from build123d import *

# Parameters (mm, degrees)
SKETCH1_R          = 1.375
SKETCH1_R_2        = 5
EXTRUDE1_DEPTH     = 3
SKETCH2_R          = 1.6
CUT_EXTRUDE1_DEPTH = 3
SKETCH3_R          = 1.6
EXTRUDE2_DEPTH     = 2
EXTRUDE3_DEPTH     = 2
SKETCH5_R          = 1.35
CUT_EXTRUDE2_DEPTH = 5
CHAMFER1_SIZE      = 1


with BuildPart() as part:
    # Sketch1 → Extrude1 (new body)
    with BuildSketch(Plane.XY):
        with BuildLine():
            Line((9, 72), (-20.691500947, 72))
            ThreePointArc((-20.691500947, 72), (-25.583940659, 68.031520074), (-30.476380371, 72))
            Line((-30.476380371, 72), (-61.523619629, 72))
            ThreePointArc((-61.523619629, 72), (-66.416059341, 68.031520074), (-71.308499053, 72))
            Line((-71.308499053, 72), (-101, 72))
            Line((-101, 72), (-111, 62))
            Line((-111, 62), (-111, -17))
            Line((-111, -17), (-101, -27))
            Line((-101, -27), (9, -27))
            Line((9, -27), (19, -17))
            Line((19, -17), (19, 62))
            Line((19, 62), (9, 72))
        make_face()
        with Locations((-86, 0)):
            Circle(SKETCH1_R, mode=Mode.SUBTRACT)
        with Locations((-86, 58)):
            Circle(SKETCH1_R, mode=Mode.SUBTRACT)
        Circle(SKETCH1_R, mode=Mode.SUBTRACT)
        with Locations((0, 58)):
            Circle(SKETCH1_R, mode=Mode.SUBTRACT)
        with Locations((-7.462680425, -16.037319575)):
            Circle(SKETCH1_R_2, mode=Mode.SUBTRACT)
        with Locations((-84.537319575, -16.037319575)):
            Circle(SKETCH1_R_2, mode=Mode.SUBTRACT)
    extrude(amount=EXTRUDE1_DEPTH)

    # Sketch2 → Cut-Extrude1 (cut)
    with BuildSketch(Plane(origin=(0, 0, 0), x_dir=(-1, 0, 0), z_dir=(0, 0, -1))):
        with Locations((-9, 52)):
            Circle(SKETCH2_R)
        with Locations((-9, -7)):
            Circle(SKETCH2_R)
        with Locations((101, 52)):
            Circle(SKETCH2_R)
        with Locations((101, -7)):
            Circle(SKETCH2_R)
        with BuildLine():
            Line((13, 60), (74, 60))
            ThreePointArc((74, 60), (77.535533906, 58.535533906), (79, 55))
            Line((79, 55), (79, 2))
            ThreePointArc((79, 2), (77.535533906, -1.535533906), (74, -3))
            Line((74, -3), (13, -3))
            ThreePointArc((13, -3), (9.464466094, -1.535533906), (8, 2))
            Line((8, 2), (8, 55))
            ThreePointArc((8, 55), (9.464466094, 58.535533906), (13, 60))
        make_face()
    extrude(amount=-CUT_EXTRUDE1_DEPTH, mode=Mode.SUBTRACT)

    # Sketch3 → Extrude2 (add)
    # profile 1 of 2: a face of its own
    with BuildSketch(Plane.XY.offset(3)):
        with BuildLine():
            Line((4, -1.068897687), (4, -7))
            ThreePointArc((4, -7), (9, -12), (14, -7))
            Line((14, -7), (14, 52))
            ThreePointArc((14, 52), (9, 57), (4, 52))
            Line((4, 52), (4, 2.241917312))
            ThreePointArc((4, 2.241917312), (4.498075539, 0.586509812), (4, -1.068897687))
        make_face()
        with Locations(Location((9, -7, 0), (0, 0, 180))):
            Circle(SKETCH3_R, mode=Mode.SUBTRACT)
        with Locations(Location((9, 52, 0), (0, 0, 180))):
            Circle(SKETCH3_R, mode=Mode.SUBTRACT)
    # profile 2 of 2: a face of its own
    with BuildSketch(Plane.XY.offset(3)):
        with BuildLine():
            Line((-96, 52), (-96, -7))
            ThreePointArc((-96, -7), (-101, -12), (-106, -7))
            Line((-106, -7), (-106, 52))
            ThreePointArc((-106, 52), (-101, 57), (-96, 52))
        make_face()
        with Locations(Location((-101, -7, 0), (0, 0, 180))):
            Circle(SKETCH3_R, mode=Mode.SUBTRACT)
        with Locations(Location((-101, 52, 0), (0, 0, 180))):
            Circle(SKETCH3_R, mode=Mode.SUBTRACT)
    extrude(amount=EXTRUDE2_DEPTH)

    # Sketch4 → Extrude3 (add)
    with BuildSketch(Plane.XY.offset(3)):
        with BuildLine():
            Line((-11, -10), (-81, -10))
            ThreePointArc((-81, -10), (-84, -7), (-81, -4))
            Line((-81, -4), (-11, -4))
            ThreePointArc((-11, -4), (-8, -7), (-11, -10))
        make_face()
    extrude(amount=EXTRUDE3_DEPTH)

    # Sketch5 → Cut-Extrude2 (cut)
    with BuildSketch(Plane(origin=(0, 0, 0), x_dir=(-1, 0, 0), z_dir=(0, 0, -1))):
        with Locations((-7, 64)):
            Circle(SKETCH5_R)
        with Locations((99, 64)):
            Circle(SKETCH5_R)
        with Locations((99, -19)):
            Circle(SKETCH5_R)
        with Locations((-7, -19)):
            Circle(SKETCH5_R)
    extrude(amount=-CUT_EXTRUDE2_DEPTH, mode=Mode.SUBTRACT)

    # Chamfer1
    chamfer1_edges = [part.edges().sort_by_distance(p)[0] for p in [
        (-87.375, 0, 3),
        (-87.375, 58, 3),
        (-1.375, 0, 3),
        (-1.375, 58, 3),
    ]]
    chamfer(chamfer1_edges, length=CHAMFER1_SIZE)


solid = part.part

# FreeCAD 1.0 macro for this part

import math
import FreeCAD as App
import Part
import Sketcher
from FreeCAD import Vector
Q = App.Units.Quantity


def edges_at(feature, points):
    """Names of the edges that pass closest to the given points."""
    edges = feature.Shape.Edges
    near = lambda p: min(range(len(edges)), key=lambda i: edges[i].distToShape(Part.Vertex(*p))[0])
    return sorted({f"Edge{near(p) + 1}" for p in points})

doc = App.newDocument("Part")
body = doc.addObject("PartDesign::Body", "Body")

sketch1 = body.newObject("Sketcher::SketchObject", "Sketch")
sketch1.AttachmentSupport = (doc.getObject("XY_Plane"), [""])
sketch1.MapMode = "FlatFace"
sketch1.addGeometry(Part.LineSegment(Vector(9, 72, 0), Vector(-20.7, 72, 0)), False)
sketch1.addGeometry(Part.ArcOfCircle(Part.Circle(Vector(-25.6, 73, 0), Vector(0, 0, 1), 5), math.radians(-168), math.radians(-12)), False)
sketch1.addGeometry(Part.LineSegment(Vector(-30.5, 72, 0), Vector(-61.5, 72, 0)), False)
sketch1.addGeometry(Part.ArcOfCircle(Part.Circle(Vector(-66.4, 73, 0), Vector(0, 0, 1), 5), math.radians(-168), math.radians(-12)), False)
sketch1.addGeometry(Part.LineSegment(Vector(-71.3, 72, 0), Vector(-101, 72, 0)), False)
sketch1.addGeometry(Part.LineSegment(Vector(-101, 72, 0), Vector(-111, 62, 0)), False)
sketch1.addGeometry(Part.LineSegment(Vector(-111, 62, 0), Vector(-111, -17, 0)), False)
sketch1.addGeometry(Part.LineSegment(Vector(-111, -17, 0), Vector(-101, -27, 0)), False)
sketch1.addGeometry(Part.LineSegment(Vector(-101, -27, 0), Vector(9, -27, 0)), False)
sketch1.addGeometry(Part.LineSegment(Vector(9, -27, 0), Vector(19, -17, 0)), False)
sketch1.addGeometry(Part.LineSegment(Vector(19, -17, 0), Vector(19, 62, 0)), False)
sketch1.addGeometry(Part.LineSegment(Vector(19, 62, 0), Vector(9, 72, 0)), False)
sketch1.addGeometry(Part.Circle(Vector(-84.5, -16, 0), Vector(0, 0, 1), 5), False)
sketch1.addGeometry(Part.Circle(Vector(-86, 0, 0), Vector(0, 0, 1), 1.4), False)
sketch1.addGeometry(Part.Circle(Vector(-7.5, -16, 0), Vector(0, 0, 1), 5), False)
sketch1.addGeometry(Part.Circle(Vector(0, 0, 0), Vector(0, 0, 1), 1.4), False)
sketch1.addGeometry(Part.Circle(Vector(-86, 58, 0), Vector(0, 0, 1), 1.4), False)
sketch1.addGeometry(Part.Circle(Vector(0, 58, 0), Vector(0, 0, 1), 1.4), False)
sketch1.addConstraint(Sketcher.Constraint("Coincident", 0, 2, 1, 2))
sketch1.addConstraint(Sketcher.Constraint("Coincident", 1, 1, 2, 1))
sketch1.addConstraint(Sketcher.Constraint("Coincident", 2, 2, 3, 2))
sketch1.addConstraint(Sketcher.Constraint("Coincident", 3, 1, 4, 1))
sketch1.addConstraint(Sketcher.Constraint("Coincident", 4, 2, 5, 1))
sketch1.addConstraint(Sketcher.Constraint("Coincident", 5, 2, 6, 1))
sketch1.addConstraint(Sketcher.Constraint("Coincident", 6, 2, 7, 1))
sketch1.addConstraint(Sketcher.Constraint("Coincident", 7, 2, 8, 1))
sketch1.addConstraint(Sketcher.Constraint("Coincident", 8, 2, 9, 1))
sketch1.addConstraint(Sketcher.Constraint("Coincident", 9, 2, 10, 1))
sketch1.addConstraint(Sketcher.Constraint("Coincident", 10, 2, 11, 1))
sketch1.addConstraint(Sketcher.Constraint("Coincident", 11, 2, 0, 1))
sketch1.addConstraint(Sketcher.Constraint("Horizontal", 0))
sketch1.addConstraint(Sketcher.Constraint("Horizontal", 2))
sketch1.addConstraint(Sketcher.Constraint("Horizontal", 4))
sketch1.addConstraint(Sketcher.Constraint("Vertical", 6))
sketch1.addConstraint(Sketcher.Constraint("Horizontal", 8))
sketch1.addConstraint(Sketcher.Constraint("Vertical", 10))
sketch1.addConstraint(Sketcher.Constraint("Coincident", 15, 3, -1, 1))
sketch1.addConstraint(Sketcher.Constraint("Equal", 1, 3))
sketch1.addConstraint(Sketcher.Constraint("Equal", 3, 12))
sketch1.addConstraint(Sketcher.Constraint("Equal", 12, 14))
sketch1.addConstraint(Sketcher.Constraint("Equal", 13, 15))
sketch1.addConstraint(Sketcher.Constraint("Equal", 15, 16))
sketch1.addConstraint(Sketcher.Constraint("Equal", 16, 17))
sketch1.addConstraint(Sketcher.Constraint("PointOnObject", 13, 3, -1))
sketch1.addConstraint(Sketcher.Constraint("PointOnObject", 17, 3, -2))
sketch1.addConstraint(Sketcher.Constraint("Perpendicular", 5, 7))
sketch1.addConstraint(Sketcher.Constraint("Perpendicular", 7, 9))
sketch1.addConstraint(Sketcher.Constraint("Perpendicular", 9, 11))
sketch1.addConstraint(Sketcher.Constraint("Horizontal", 1, 3, 3, 3))
sketch1.addConstraint(Sketcher.Constraint("Horizontal", 12, 3, 14, 3))
sketch1.addConstraint(Sketcher.Constraint("Horizontal", 16, 3, 17, 3))
sketch1.addConstraint(Sketcher.Constraint("Horizontal", 0, 2, 1, 1))
sketch1.addConstraint(Sketcher.Constraint("Horizontal", 2, 2, 3, 1))
sketch1.addConstraint(Sketcher.Constraint("Horizontal", 6, 2, 9, 2))
sketch1.addConstraint(Sketcher.Constraint("Horizontal", 5, 2, 10, 2))
sketch1.addConstraint(Sketcher.Constraint("Vertical", 13, 3, 16, 3))
sketch1.addConstraint(Sketcher.Constraint("Vertical", 4, 2, 7, 2))
sketch1.addConstraint(Sketcher.Constraint("Vertical", 8, 2, 11, 2))
sketch1.addConstraint(Sketcher.Constraint("Equal", 0, 4))
sketch1.addConstraint(Sketcher.Constraint("Diameter", 12, Q("10 mm")))
sketch1.addConstraint(Sketcher.Constraint("Diameter", 13, Q("2.75 mm")))
sketch1.addConstraint(Sketcher.Constraint("DistanceX", 8, 1, 8, 2, Q("110 mm")))
sketch1.addConstraint(Sketcher.Constraint("DistanceY", 6, 2, 6, 1, Q("79 mm")))
sketch1.addConstraint(Sketcher.Constraint("DistanceX", 13, 3, -1, 1, Q("86 mm")))
sketch1.addConstraint(Sketcher.Constraint("DistanceY", -1, 1, 16, 3, Q("58 mm")))
sketch1.addConstraint(Sketcher.Constraint("DistanceY", -1, 1, 0, 2, Q("72 mm")))
sketch1.addConstraint(Sketcher.Constraint("DistanceX", 4, 2, -1, 1, Q("101 mm")))
sketch1.addConstraint(Sketcher.Constraint("DistanceX", 5, 2, -1, 1, Q("111 mm")))
sketch1.addConstraint(Sketcher.Constraint("DistanceX", 0, 2, 0, 1, Q("29.691501 mm")))
sketch1.addConstraint(Sketcher.Constraint("DistanceX", 2, 2, 2, 1, Q("31.047239 mm")))
sketch1.addConstraint(Sketcher.Constraint("DistanceX", 12, 3, -1, 1, Q("84.53732 mm")))
sketch1.addConstraint(Sketcher.Constraint("DistanceY", 12, 3, -1, 1, Q("16.03732 mm")))
sketch1.addConstraint(Sketcher.Constraint("DistanceX", 14, 3, -1, 1, Q("7.46268 mm")))
pad1 = body.newObject("PartDesign::Pad", "Pad")
pad1.Profile = sketch1
pad1.Length = 3

sketch2 = body.newObject("Sketcher::SketchObject", "Sketch001")
sketch2.AttachmentSupport = (doc.getObject("XY_Plane"), [""])
sketch2.MapMode = "FlatFace"
sketch2.addGeometry(Part.Circle(Vector(9, 52, 0), Vector(0, 0, 1), 1.6), False)
sketch2.addGeometry(Part.Circle(Vector(9, -7, 0), Vector(0, 0, 1), 1.6), False)
sketch2.addGeometry(Part.Circle(Vector(-101, 52, 0), Vector(0, 0, 1), 1.6), False)
sketch2.addGeometry(Part.Circle(Vector(-101, -7, 0), Vector(0, 0, 1), 1.6), False)
sketch2.addGeometry(Part.LineSegment(Vector(-74, 60, 0), Vector(-13, 60, 0)), False)
sketch2.addGeometry(Part.ArcOfCircle(Part.Circle(Vector(-13, 55, 0), Vector(0, 0, 1), 5), math.radians(0), math.radians(90)), False)
sketch2.addGeometry(Part.LineSegment(Vector(-8, 55, 0), Vector(-8, 2, 0)), False)
sketch2.addGeometry(Part.ArcOfCircle(Part.Circle(Vector(-13, 2, 0), Vector(0, 0, 1), 5), math.radians(-90), math.radians(0)), False)
sketch2.addGeometry(Part.LineSegment(Vector(-13, -3, 0), Vector(-74, -3, 0)), False)
sketch2.addGeometry(Part.ArcOfCircle(Part.Circle(Vector(-74, 2, 0), Vector(0, 0, 1), 5), math.radians(180), math.radians(270)), False)
sketch2.addGeometry(Part.LineSegment(Vector(-79, 2, 0), Vector(-79, 55, 0)), False)
sketch2.addGeometry(Part.ArcOfCircle(Part.Circle(Vector(-74, 55, 0), Vector(0, 0, 1), 5), math.radians(90), math.radians(180)), False)
sketch2.addConstraint(Sketcher.Constraint("Tangent", 4, 2, 5, 2))
sketch2.addConstraint(Sketcher.Constraint("Tangent", 5, 1, 6, 1))
sketch2.addConstraint(Sketcher.Constraint("Tangent", 6, 2, 7, 2))
sketch2.addConstraint(Sketcher.Constraint("Tangent", 7, 1, 8, 1))
sketch2.addConstraint(Sketcher.Constraint("Tangent", 8, 2, 9, 2))
sketch2.addConstraint(Sketcher.Constraint("Tangent", 9, 1, 10, 1))
sketch2.addConstraint(Sketcher.Constraint("Tangent", 10, 2, 11, 2))
sketch2.addConstraint(Sketcher.Constraint("Tangent", 11, 1, 4, 1))
sketch2.addConstraint(Sketcher.Constraint("Horizontal", 4))
sketch2.addConstraint(Sketcher.Constraint("Vertical", 6))
sketch2.addConstraint(Sketcher.Constraint("Horizontal", 8))
sketch2.addConstraint(Sketcher.Constraint("Vertical", 10))
sketch2.addConstraint(Sketcher.Constraint("Equal", 0, 1))
sketch2.addConstraint(Sketcher.Constraint("Equal", 1, 2))
sketch2.addConstraint(Sketcher.Constraint("Equal", 2, 3))
sketch2.addConstraint(Sketcher.Constraint("Equal", 5, 7))
sketch2.addConstraint(Sketcher.Constraint("Equal", 7, 9))
sketch2.addConstraint(Sketcher.Constraint("Equal", 9, 11))
sketch2.addConstraint(Sketcher.Constraint("Horizontal", 0, 3, 2, 3))
sketch2.addConstraint(Sketcher.Constraint("Horizontal", 1, 3, 3, 3))
sketch2.addConstraint(Sketcher.Constraint("Vertical", 0, 3, 1, 3))
sketch2.addConstraint(Sketcher.Constraint("Vertical", 2, 3, 3, 3))
sketch2.addConstraint(Sketcher.Constraint("Radius", 5, Q("5 mm")))
sketch2.addConstraint(Sketcher.Constraint("Diameter", 0, Q("3.2 mm")))
sketch2.addConstraint(Sketcher.Constraint("DistanceX", 4, 1, 4, 2, Q("61 mm")))
sketch2.addConstraint(Sketcher.Constraint("DistanceY", 6, 2, 6, 1, Q("53 mm")))
sketch2.addConstraint(Sketcher.Constraint("DistanceX", -1, 1, 0, 3, Q("9 mm")))
sketch2.addConstraint(Sketcher.Constraint("DistanceY", -1, 1, 0, 3, Q("52 mm")))
sketch2.addConstraint(Sketcher.Constraint("DistanceY", 1, 3, -1, 1, Q("7 mm")))
sketch2.addConstraint(Sketcher.Constraint("DistanceX", 2, 3, -1, 1, Q("101 mm")))
sketch2.addConstraint(Sketcher.Constraint("DistanceX", 5, 3, -1, 1, Q("13 mm")))
sketch2.addConstraint(Sketcher.Constraint("DistanceY", -1, 1, 5, 3, Q("55 mm")))
pocket1 = body.newObject("PartDesign::Pocket", "Pocket")
pocket1.Profile = sketch2
pocket1.Length = 3
pocket1.Reversed = True

sketch3 = body.newObject("Sketcher::SketchObject", "Sketch002")
sketch3.AttachmentSupport = (doc.getObject("XY_Plane"), [""])
sketch3.MapMode = "FlatFace"
sketch3.AttachmentOffset = App.Placement(Vector(0, 0, 3), App.Rotation())
sketch3.addGeometry(Part.LineSegment(Vector(4, -1.1, 0), Vector(4, -7, 0)), False)
sketch3.addGeometry(Part.ArcOfCircle(Part.Circle(Vector(9, -7, 0), Vector(0, 0, 1), 5), math.radians(180), math.radians(360)), False)
sketch3.addGeometry(Part.LineSegment(Vector(14, -7, 0), Vector(14, 52, 0)), False)
sketch3.addGeometry(Part.ArcOfCircle(Part.Circle(Vector(9, 52, 0), Vector(0, 0, 1), 5), math.radians(0), math.radians(180)), False)
sketch3.addGeometry(Part.LineSegment(Vector(4, 52, 0), Vector(4, 2.2, 0)), False)
sketch3.addGeometry(Part.ArcOfCircle(Part.Circle(Vector(1.5, 0.6, 0), Vector(0, 0, 1), 3), math.radians(-33), math.radians(33)), False)
sketch3.addGeometry(Part.Circle(Vector(9, -7, 0), Vector(0, 0, 1), 1.6), False)
sketch3.addGeometry(Part.Circle(Vector(9, 52, 0), Vector(0, 0, 1), 1.6), False)
sketch3.addGeometry(Part.LineSegment(Vector(-96, -7, 0), Vector(-96, 52, 0)), False)
sketch3.addGeometry(Part.ArcOfCircle(Part.Circle(Vector(-101, 52, 0), Vector(0, 0, 1), 5), math.radians(0), math.radians(180)), False)
sketch3.addGeometry(Part.LineSegment(Vector(-106, 52, 0), Vector(-106, -7, 0)), False)
sketch3.addGeometry(Part.ArcOfCircle(Part.Circle(Vector(-101, -7, 0), Vector(0, 0, 1), 5), math.radians(180), math.radians(360)), False)
sketch3.addGeometry(Part.Circle(Vector(-101, -7, 0), Vector(0, 0, 1), 1.6), False)
sketch3.addGeometry(Part.Circle(Vector(-101, 52, 0), Vector(0, 0, 1), 1.6), False)
sketch3.addConstraint(Sketcher.Constraint("Tangent", 0, 2, 1, 1))
sketch3.addConstraint(Sketcher.Constraint("Tangent", 1, 2, 2, 1))
sketch3.addConstraint(Sketcher.Constraint("Tangent", 2, 2, 3, 1))
sketch3.addConstraint(Sketcher.Constraint("Tangent", 3, 2, 4, 1))
sketch3.addConstraint(Sketcher.Constraint("Coincident", 4, 2, 5, 2))
sketch3.addConstraint(Sketcher.Constraint("Coincident", 5, 1, 0, 1))
sketch3.addConstraint(Sketcher.Constraint("Tangent", 8, 2, 9, 1))
sketch3.addConstraint(Sketcher.Constraint("Tangent", 9, 2, 10, 1))
sketch3.addConstraint(Sketcher.Constraint("Tangent", 10, 2, 11, 1))
sketch3.addConstraint(Sketcher.Constraint("Tangent", 11, 2, 8, 1))
sketch3.addConstraint(Sketcher.Constraint("Vertical", 0))
sketch3.addConstraint(Sketcher.Constraint("Vertical", 2))
sketch3.addConstraint(Sketcher.Constraint("Vertical", 4))
sketch3.addConstraint(Sketcher.Constraint("Vertical", 8))
sketch3.addConstraint(Sketcher.Constraint("Vertical", 10))
sketch3.addConstraint(Sketcher.Constraint("Coincident", 6, 3, 1, 3))
sketch3.addConstraint(Sketcher.Constraint("Coincident", 7, 3, 3, 3))
sketch3.addConstraint(Sketcher.Constraint("Coincident", 12, 3, 11, 3))
sketch3.addConstraint(Sketcher.Constraint("Coincident", 13, 3, 9, 3))
sketch3.addConstraint(Sketcher.Constraint("Equal", 1, 3))
sketch3.addConstraint(Sketcher.Constraint("Equal", 6, 7))
sketch3.addConstraint(Sketcher.Constraint("Equal", 3, 9))
sketch3.addConstraint(Sketcher.Constraint("Equal", 7, 12))
sketch3.addConstraint(Sketcher.Constraint("Equal", 12, 13))
sketch3.addConstraint(Sketcher.Constraint("Horizontal", 7, 3, 9, 3))
sketch3.addConstraint(Sketcher.Constraint("Horizontal", 6, 3, 11, 3))
sketch3.addConstraint(Sketcher.Constraint("Radius", 1, Q("5 mm")))
sketch3.addConstraint(Sketcher.Constraint("Radius", 5, Q("3 mm")))
sketch3.addConstraint(Sketcher.Constraint("Diameter", 6, Q("3.2 mm")))
sketch3.addConstraint(Sketcher.Constraint("DistanceY", 2, 1, 2, 2, Q("59 mm")))
sketch3.addConstraint(Sketcher.Constraint("DistanceX", -1, 1, 1, 3, Q("9 mm")))
sketch3.addConstraint(Sketcher.Constraint("DistanceY", 1, 3, -1, 1, Q("7 mm")))
sketch3.addConstraint(Sketcher.Constraint("DistanceX", 9, 3, -1, 1, Q("101 mm")))
sketch3.addConstraint(Sketcher.Constraint("DistanceY", 0, 2, 0, 1, Q("5.931102 mm")))
sketch3.addConstraint(Sketcher.Constraint("DistanceY", 4, 2, 4, 1, Q("49.758083 mm")))
pad2 = body.newObject("PartDesign::Pad", "Pad001")
pad2.Profile = sketch3
pad2.Length = 2

sketch4 = body.newObject("Sketcher::SketchObject", "Sketch003")
sketch4.AttachmentSupport = (doc.getObject("XY_Plane"), [""])
sketch4.MapMode = "FlatFace"
sketch4.AttachmentOffset = App.Placement(Vector(0, 0, 3), App.Rotation())
sketch4.addGeometry(Part.LineSegment(Vector(-81, -10, 0), Vector(-11, -10, 0)), False)
sketch4.addGeometry(Part.ArcOfCircle(Part.Circle(Vector(-11, -7, 0), Vector(0, 0, 1), 3), math.radians(-90), math.radians(90)), False)
sketch4.addGeometry(Part.LineSegment(Vector(-11, -4, 0), Vector(-81, -4, 0)), False)
sketch4.addGeometry(Part.ArcOfCircle(Part.Circle(Vector(-81, -7, 0), Vector(0, 0, 1), 3), math.radians(90), math.radians(270)), False)
sketch4.addConstraint(Sketcher.Constraint("Tangent", 0, 2, 1, 1))
sketch4.addConstraint(Sketcher.Constraint("Tangent", 1, 2, 2, 1))
sketch4.addConstraint(Sketcher.Constraint("Tangent", 2, 2, 3, 1))
sketch4.addConstraint(Sketcher.Constraint("Tangent", 3, 2, 0, 1))
sketch4.addConstraint(Sketcher.Constraint("Horizontal", 0))
sketch4.addConstraint(Sketcher.Constraint("Horizontal", 2))
sketch4.addConstraint(Sketcher.Constraint("Radius", 1, Q("3 mm")))
sketch4.addConstraint(Sketcher.Constraint("DistanceX", 0, 1, 0, 2, Q("70 mm")))
sketch4.addConstraint(Sketcher.Constraint("DistanceX", 1, 3, -1, 1, Q("11 mm")))
sketch4.addConstraint(Sketcher.Constraint("DistanceY", 1, 3, -1, 1, Q("7 mm")))
pad3 = body.newObject("PartDesign::Pad", "Pad002")
pad3.Profile = sketch4
pad3.Length = 2

sketch5 = body.newObject("Sketcher::SketchObject", "Sketch004")
sketch5.AttachmentSupport = (doc.getObject("XY_Plane"), [""])
sketch5.MapMode = "FlatFace"
sketch5.addGeometry(Part.Circle(Vector(7, 64, 0), Vector(0, 0, 1), 1.4), False)
sketch5.addGeometry(Part.Circle(Vector(-99, 64, 0), Vector(0, 0, 1), 1.4), False)
sketch5.addGeometry(Part.Circle(Vector(-99, -19, 0), Vector(0, 0, 1), 1.4), False)
sketch5.addGeometry(Part.Circle(Vector(7, -19, 0), Vector(0, 0, 1), 1.4), False)
sketch5.addConstraint(Sketcher.Constraint("Equal", 0, 1))
sketch5.addConstraint(Sketcher.Constraint("Equal", 1, 2))
sketch5.addConstraint(Sketcher.Constraint("Equal", 2, 3))
sketch5.addConstraint(Sketcher.Constraint("Horizontal", 0, 3, 1, 3))
sketch5.addConstraint(Sketcher.Constraint("Horizontal", 2, 3, 3, 3))
sketch5.addConstraint(Sketcher.Constraint("Vertical", 1, 3, 2, 3))
sketch5.addConstraint(Sketcher.Constraint("Vertical", 0, 3, 3, 3))
sketch5.addConstraint(Sketcher.Constraint("Diameter", 0, Q("2.7 mm")))
sketch5.addConstraint(Sketcher.Constraint("DistanceX", -1, 1, 0, 3, Q("7 mm")))
sketch5.addConstraint(Sketcher.Constraint("DistanceY", -1, 1, 0, 3, Q("64 mm")))
sketch5.addConstraint(Sketcher.Constraint("DistanceX", 1, 3, -1, 1, Q("99 mm")))
sketch5.addConstraint(Sketcher.Constraint("DistanceY", 2, 3, -1, 1, Q("19 mm")))
pocket2 = body.newObject("PartDesign::Pocket", "Pocket001")
pocket2.Profile = sketch5
pocket2.Length = 5
pocket2.Reversed = True
doc.recompute()

chamfer = body.newObject("PartDesign::Chamfer", "Chamfer")
chamfer.Base = (pocket2, edges_at(pocket2, [
    (-87.375, 0, 3),
    (-87.375, 58, 3),
    (-1.375, 0, 3),
    (-1.375, 58, 3),
]))
chamfer.Size = 1

doc.recompute()
